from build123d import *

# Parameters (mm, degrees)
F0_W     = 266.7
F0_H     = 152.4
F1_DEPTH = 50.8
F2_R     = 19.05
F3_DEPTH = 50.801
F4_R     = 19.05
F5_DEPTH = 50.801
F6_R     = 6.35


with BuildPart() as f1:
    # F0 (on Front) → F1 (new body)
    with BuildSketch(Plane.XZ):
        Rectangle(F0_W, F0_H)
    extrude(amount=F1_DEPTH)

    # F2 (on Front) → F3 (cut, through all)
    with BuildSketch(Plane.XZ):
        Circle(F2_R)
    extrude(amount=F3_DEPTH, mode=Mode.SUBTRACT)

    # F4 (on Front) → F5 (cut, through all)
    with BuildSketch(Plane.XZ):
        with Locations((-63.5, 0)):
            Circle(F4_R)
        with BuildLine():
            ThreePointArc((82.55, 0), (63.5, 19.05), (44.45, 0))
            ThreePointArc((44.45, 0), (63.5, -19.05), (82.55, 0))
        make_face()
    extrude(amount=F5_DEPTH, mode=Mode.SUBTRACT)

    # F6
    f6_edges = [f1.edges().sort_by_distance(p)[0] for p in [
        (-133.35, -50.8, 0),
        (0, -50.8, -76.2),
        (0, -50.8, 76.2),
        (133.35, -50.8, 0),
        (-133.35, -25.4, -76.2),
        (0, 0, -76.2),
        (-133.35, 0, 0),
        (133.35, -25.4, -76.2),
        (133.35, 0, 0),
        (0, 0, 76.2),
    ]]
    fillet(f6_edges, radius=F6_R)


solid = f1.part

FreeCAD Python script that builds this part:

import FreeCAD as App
import Part
import Sketcher
Q = App.Units.Quantity


def edges_at(feature, points):
    """Names of the edges that pass closest to the given points."""
    edges = feature.Shape.Edges
    near = lambda p: min(range(len(edges)), key=lambda i: edges[i].distToShape(Part.Vertex(*p))[0])
    return sorted({f"Edge{near(p) + 1}" for p in points})

doc = App.newDocument("Part")
params = doc.addObject("Spreadsheet::Sheet", "Params")
for row, (alias, value) in enumerate([
    ("sketch1_height", "6 in"),
    ("sketch1_width", "10.5 in"),
    ("pad1_length", "2 in"),
    ("sketch2_diameter", "1.5 in"),
    ("sketch3_diameter", "1.5 in"),
    ("fillet_radius", "0.25 in"),
], start=1):
    params.set(f"A{row}", alias)
    params.set(f"B{row}", "=" + value)
    params.setAlias(f"B{row}", alias)

body = doc.addObject("PartDesign::Body", "Body")

sketch1 = body.newObject("Sketcher::SketchObject", "Sketch")
sketch1.AttachmentSupport = (doc.getObject("XZ_Plane"), [""])
sketch1.MapMode = "FlatFace"
sketch1.addGeometry([
    Part.LineSegment(App.Vector(-133, 76, 0), App.Vector(-133, -76, 0)),
    Part.LineSegment(App.Vector(-133, -76, 0), App.Vector(133, -76, 0)),
    Part.LineSegment(App.Vector(133, -76, 0), App.Vector(133, 76, 0)),
    Part.LineSegment(App.Vector(133, 76, 0), App.Vector(-133, 76, 0)),
], False)
sketch1.addConstraint([
    Sketcher.Constraint("Coincident", 0, 2, 1, 1),
    Sketcher.Constraint("Coincident", 1, 2, 2, 1),
    Sketcher.Constraint("Coincident", 2, 2, 3, 1),
    Sketcher.Constraint("Coincident", 3, 2, 0, 1),
    Sketcher.Constraint("Vertical", 0),
    Sketcher.Constraint("Horizontal", 1),
    Sketcher.Constraint("Vertical", 2),
    Sketcher.Constraint("Horizontal", 3),
    Sketcher.Constraint("Symmetric", 0, 2, 2, 2, -1, 1),
    Sketcher.Constraint("DistanceY", 0, 2, 0, 1, Q("6 in")),
    Sketcher.Constraint("DistanceX", 1, 1, 1, 2, Q("10.5 in")),
])
sketch1.setExpression("Constraints[9]", "Params.sketch1_height")
sketch1.setExpression("Constraints[10]", "Params.sketch1_width")
pad1 = body.newObject("PartDesign::Pad", "Pad")
pad1.Profile = sketch1
pad1.setExpression("Length", "Params.pad1_length")

sketch2 = body.newObject("Sketcher::SketchObject", "Sketch001")
sketch2.AttachmentSupport = (doc.getObject("XZ_Plane"), [""])
sketch2.MapMode = "FlatFace"
sketch2.addGeometry(Part.Circle(App.Vector(0, 0, 0), App.Vector(0, 0, 1), 19), False)
sketch2.addConstraint([
    Sketcher.Constraint("Coincident", 0, 3, -1, 1),
    Sketcher.Constraint("Diameter", 0, Q("1.5 in")),
])
sketch2.setExpression("Constraints[1]", "Params.sketch2_diameter")
pocket1 = body.newObject("PartDesign::Pocket", "Pocket")
pocket1.Profile = sketch2
pocket1.Type = "ThroughAll"
pocket1.Reversed = True

sketch3 = body.newObject("Sketcher::SketchObject", "Sketch002")
sketch3.AttachmentSupport = (doc.getObject("XZ_Plane"), [""])
sketch3.MapMode = "FlatFace"
sketch3.addGeometry([
    Part.Circle(App.Vector(-64, 0, 0), App.Vector(0, 0, 1), 19),
    Part.Circle(App.Vector(64, 0, 0), App.Vector(0, 0, 1), 19),
], False)
sketch3.addConstraint([
    Sketcher.Constraint("Equal", 0, 1),
    Sketcher.Constraint("Symmetric", 0, 3, 1, 3, -1, 1),
    Sketcher.Constraint("PointOnObject", 0, 3, -1),
    Sketcher.Constraint("Diameter", 0, Q("1.5 in")),
    Sketcher.Constraint("DistanceX", 0, 3, 1, 3, Q("5 in")),
])
sketch3.setExpression("Constraints[3]", "Params.sketch3_diameter")
pocket2 = body.newObject("PartDesign::Pocket", "Pocket001")
pocket2.Profile = sketch3
pocket2.Type = "ThroughAll"
pocket2.Reversed = True
doc.recompute()

fillet = body.newObject("PartDesign::Fillet", "Fillet")
fillet.Base = (pocket2, edges_at(pocket2, [
    (-133.35, -50.8, 0),
    (0, -50.8, -76.2),
    (0, -50.8, 76.2),
    (133.35, -50.8, 0),
    (-133.35, -25.4, -76.2),
    (0, 0, -76.2),
    (-133.35, 0, 0),
    (133.35, -25.4, -76.2),
    (133.35, 0, 0),
    (0, 0, 76.2),
]))
fillet.setExpression("Radius", "Params.fillet_radius")

doc.recompute()
